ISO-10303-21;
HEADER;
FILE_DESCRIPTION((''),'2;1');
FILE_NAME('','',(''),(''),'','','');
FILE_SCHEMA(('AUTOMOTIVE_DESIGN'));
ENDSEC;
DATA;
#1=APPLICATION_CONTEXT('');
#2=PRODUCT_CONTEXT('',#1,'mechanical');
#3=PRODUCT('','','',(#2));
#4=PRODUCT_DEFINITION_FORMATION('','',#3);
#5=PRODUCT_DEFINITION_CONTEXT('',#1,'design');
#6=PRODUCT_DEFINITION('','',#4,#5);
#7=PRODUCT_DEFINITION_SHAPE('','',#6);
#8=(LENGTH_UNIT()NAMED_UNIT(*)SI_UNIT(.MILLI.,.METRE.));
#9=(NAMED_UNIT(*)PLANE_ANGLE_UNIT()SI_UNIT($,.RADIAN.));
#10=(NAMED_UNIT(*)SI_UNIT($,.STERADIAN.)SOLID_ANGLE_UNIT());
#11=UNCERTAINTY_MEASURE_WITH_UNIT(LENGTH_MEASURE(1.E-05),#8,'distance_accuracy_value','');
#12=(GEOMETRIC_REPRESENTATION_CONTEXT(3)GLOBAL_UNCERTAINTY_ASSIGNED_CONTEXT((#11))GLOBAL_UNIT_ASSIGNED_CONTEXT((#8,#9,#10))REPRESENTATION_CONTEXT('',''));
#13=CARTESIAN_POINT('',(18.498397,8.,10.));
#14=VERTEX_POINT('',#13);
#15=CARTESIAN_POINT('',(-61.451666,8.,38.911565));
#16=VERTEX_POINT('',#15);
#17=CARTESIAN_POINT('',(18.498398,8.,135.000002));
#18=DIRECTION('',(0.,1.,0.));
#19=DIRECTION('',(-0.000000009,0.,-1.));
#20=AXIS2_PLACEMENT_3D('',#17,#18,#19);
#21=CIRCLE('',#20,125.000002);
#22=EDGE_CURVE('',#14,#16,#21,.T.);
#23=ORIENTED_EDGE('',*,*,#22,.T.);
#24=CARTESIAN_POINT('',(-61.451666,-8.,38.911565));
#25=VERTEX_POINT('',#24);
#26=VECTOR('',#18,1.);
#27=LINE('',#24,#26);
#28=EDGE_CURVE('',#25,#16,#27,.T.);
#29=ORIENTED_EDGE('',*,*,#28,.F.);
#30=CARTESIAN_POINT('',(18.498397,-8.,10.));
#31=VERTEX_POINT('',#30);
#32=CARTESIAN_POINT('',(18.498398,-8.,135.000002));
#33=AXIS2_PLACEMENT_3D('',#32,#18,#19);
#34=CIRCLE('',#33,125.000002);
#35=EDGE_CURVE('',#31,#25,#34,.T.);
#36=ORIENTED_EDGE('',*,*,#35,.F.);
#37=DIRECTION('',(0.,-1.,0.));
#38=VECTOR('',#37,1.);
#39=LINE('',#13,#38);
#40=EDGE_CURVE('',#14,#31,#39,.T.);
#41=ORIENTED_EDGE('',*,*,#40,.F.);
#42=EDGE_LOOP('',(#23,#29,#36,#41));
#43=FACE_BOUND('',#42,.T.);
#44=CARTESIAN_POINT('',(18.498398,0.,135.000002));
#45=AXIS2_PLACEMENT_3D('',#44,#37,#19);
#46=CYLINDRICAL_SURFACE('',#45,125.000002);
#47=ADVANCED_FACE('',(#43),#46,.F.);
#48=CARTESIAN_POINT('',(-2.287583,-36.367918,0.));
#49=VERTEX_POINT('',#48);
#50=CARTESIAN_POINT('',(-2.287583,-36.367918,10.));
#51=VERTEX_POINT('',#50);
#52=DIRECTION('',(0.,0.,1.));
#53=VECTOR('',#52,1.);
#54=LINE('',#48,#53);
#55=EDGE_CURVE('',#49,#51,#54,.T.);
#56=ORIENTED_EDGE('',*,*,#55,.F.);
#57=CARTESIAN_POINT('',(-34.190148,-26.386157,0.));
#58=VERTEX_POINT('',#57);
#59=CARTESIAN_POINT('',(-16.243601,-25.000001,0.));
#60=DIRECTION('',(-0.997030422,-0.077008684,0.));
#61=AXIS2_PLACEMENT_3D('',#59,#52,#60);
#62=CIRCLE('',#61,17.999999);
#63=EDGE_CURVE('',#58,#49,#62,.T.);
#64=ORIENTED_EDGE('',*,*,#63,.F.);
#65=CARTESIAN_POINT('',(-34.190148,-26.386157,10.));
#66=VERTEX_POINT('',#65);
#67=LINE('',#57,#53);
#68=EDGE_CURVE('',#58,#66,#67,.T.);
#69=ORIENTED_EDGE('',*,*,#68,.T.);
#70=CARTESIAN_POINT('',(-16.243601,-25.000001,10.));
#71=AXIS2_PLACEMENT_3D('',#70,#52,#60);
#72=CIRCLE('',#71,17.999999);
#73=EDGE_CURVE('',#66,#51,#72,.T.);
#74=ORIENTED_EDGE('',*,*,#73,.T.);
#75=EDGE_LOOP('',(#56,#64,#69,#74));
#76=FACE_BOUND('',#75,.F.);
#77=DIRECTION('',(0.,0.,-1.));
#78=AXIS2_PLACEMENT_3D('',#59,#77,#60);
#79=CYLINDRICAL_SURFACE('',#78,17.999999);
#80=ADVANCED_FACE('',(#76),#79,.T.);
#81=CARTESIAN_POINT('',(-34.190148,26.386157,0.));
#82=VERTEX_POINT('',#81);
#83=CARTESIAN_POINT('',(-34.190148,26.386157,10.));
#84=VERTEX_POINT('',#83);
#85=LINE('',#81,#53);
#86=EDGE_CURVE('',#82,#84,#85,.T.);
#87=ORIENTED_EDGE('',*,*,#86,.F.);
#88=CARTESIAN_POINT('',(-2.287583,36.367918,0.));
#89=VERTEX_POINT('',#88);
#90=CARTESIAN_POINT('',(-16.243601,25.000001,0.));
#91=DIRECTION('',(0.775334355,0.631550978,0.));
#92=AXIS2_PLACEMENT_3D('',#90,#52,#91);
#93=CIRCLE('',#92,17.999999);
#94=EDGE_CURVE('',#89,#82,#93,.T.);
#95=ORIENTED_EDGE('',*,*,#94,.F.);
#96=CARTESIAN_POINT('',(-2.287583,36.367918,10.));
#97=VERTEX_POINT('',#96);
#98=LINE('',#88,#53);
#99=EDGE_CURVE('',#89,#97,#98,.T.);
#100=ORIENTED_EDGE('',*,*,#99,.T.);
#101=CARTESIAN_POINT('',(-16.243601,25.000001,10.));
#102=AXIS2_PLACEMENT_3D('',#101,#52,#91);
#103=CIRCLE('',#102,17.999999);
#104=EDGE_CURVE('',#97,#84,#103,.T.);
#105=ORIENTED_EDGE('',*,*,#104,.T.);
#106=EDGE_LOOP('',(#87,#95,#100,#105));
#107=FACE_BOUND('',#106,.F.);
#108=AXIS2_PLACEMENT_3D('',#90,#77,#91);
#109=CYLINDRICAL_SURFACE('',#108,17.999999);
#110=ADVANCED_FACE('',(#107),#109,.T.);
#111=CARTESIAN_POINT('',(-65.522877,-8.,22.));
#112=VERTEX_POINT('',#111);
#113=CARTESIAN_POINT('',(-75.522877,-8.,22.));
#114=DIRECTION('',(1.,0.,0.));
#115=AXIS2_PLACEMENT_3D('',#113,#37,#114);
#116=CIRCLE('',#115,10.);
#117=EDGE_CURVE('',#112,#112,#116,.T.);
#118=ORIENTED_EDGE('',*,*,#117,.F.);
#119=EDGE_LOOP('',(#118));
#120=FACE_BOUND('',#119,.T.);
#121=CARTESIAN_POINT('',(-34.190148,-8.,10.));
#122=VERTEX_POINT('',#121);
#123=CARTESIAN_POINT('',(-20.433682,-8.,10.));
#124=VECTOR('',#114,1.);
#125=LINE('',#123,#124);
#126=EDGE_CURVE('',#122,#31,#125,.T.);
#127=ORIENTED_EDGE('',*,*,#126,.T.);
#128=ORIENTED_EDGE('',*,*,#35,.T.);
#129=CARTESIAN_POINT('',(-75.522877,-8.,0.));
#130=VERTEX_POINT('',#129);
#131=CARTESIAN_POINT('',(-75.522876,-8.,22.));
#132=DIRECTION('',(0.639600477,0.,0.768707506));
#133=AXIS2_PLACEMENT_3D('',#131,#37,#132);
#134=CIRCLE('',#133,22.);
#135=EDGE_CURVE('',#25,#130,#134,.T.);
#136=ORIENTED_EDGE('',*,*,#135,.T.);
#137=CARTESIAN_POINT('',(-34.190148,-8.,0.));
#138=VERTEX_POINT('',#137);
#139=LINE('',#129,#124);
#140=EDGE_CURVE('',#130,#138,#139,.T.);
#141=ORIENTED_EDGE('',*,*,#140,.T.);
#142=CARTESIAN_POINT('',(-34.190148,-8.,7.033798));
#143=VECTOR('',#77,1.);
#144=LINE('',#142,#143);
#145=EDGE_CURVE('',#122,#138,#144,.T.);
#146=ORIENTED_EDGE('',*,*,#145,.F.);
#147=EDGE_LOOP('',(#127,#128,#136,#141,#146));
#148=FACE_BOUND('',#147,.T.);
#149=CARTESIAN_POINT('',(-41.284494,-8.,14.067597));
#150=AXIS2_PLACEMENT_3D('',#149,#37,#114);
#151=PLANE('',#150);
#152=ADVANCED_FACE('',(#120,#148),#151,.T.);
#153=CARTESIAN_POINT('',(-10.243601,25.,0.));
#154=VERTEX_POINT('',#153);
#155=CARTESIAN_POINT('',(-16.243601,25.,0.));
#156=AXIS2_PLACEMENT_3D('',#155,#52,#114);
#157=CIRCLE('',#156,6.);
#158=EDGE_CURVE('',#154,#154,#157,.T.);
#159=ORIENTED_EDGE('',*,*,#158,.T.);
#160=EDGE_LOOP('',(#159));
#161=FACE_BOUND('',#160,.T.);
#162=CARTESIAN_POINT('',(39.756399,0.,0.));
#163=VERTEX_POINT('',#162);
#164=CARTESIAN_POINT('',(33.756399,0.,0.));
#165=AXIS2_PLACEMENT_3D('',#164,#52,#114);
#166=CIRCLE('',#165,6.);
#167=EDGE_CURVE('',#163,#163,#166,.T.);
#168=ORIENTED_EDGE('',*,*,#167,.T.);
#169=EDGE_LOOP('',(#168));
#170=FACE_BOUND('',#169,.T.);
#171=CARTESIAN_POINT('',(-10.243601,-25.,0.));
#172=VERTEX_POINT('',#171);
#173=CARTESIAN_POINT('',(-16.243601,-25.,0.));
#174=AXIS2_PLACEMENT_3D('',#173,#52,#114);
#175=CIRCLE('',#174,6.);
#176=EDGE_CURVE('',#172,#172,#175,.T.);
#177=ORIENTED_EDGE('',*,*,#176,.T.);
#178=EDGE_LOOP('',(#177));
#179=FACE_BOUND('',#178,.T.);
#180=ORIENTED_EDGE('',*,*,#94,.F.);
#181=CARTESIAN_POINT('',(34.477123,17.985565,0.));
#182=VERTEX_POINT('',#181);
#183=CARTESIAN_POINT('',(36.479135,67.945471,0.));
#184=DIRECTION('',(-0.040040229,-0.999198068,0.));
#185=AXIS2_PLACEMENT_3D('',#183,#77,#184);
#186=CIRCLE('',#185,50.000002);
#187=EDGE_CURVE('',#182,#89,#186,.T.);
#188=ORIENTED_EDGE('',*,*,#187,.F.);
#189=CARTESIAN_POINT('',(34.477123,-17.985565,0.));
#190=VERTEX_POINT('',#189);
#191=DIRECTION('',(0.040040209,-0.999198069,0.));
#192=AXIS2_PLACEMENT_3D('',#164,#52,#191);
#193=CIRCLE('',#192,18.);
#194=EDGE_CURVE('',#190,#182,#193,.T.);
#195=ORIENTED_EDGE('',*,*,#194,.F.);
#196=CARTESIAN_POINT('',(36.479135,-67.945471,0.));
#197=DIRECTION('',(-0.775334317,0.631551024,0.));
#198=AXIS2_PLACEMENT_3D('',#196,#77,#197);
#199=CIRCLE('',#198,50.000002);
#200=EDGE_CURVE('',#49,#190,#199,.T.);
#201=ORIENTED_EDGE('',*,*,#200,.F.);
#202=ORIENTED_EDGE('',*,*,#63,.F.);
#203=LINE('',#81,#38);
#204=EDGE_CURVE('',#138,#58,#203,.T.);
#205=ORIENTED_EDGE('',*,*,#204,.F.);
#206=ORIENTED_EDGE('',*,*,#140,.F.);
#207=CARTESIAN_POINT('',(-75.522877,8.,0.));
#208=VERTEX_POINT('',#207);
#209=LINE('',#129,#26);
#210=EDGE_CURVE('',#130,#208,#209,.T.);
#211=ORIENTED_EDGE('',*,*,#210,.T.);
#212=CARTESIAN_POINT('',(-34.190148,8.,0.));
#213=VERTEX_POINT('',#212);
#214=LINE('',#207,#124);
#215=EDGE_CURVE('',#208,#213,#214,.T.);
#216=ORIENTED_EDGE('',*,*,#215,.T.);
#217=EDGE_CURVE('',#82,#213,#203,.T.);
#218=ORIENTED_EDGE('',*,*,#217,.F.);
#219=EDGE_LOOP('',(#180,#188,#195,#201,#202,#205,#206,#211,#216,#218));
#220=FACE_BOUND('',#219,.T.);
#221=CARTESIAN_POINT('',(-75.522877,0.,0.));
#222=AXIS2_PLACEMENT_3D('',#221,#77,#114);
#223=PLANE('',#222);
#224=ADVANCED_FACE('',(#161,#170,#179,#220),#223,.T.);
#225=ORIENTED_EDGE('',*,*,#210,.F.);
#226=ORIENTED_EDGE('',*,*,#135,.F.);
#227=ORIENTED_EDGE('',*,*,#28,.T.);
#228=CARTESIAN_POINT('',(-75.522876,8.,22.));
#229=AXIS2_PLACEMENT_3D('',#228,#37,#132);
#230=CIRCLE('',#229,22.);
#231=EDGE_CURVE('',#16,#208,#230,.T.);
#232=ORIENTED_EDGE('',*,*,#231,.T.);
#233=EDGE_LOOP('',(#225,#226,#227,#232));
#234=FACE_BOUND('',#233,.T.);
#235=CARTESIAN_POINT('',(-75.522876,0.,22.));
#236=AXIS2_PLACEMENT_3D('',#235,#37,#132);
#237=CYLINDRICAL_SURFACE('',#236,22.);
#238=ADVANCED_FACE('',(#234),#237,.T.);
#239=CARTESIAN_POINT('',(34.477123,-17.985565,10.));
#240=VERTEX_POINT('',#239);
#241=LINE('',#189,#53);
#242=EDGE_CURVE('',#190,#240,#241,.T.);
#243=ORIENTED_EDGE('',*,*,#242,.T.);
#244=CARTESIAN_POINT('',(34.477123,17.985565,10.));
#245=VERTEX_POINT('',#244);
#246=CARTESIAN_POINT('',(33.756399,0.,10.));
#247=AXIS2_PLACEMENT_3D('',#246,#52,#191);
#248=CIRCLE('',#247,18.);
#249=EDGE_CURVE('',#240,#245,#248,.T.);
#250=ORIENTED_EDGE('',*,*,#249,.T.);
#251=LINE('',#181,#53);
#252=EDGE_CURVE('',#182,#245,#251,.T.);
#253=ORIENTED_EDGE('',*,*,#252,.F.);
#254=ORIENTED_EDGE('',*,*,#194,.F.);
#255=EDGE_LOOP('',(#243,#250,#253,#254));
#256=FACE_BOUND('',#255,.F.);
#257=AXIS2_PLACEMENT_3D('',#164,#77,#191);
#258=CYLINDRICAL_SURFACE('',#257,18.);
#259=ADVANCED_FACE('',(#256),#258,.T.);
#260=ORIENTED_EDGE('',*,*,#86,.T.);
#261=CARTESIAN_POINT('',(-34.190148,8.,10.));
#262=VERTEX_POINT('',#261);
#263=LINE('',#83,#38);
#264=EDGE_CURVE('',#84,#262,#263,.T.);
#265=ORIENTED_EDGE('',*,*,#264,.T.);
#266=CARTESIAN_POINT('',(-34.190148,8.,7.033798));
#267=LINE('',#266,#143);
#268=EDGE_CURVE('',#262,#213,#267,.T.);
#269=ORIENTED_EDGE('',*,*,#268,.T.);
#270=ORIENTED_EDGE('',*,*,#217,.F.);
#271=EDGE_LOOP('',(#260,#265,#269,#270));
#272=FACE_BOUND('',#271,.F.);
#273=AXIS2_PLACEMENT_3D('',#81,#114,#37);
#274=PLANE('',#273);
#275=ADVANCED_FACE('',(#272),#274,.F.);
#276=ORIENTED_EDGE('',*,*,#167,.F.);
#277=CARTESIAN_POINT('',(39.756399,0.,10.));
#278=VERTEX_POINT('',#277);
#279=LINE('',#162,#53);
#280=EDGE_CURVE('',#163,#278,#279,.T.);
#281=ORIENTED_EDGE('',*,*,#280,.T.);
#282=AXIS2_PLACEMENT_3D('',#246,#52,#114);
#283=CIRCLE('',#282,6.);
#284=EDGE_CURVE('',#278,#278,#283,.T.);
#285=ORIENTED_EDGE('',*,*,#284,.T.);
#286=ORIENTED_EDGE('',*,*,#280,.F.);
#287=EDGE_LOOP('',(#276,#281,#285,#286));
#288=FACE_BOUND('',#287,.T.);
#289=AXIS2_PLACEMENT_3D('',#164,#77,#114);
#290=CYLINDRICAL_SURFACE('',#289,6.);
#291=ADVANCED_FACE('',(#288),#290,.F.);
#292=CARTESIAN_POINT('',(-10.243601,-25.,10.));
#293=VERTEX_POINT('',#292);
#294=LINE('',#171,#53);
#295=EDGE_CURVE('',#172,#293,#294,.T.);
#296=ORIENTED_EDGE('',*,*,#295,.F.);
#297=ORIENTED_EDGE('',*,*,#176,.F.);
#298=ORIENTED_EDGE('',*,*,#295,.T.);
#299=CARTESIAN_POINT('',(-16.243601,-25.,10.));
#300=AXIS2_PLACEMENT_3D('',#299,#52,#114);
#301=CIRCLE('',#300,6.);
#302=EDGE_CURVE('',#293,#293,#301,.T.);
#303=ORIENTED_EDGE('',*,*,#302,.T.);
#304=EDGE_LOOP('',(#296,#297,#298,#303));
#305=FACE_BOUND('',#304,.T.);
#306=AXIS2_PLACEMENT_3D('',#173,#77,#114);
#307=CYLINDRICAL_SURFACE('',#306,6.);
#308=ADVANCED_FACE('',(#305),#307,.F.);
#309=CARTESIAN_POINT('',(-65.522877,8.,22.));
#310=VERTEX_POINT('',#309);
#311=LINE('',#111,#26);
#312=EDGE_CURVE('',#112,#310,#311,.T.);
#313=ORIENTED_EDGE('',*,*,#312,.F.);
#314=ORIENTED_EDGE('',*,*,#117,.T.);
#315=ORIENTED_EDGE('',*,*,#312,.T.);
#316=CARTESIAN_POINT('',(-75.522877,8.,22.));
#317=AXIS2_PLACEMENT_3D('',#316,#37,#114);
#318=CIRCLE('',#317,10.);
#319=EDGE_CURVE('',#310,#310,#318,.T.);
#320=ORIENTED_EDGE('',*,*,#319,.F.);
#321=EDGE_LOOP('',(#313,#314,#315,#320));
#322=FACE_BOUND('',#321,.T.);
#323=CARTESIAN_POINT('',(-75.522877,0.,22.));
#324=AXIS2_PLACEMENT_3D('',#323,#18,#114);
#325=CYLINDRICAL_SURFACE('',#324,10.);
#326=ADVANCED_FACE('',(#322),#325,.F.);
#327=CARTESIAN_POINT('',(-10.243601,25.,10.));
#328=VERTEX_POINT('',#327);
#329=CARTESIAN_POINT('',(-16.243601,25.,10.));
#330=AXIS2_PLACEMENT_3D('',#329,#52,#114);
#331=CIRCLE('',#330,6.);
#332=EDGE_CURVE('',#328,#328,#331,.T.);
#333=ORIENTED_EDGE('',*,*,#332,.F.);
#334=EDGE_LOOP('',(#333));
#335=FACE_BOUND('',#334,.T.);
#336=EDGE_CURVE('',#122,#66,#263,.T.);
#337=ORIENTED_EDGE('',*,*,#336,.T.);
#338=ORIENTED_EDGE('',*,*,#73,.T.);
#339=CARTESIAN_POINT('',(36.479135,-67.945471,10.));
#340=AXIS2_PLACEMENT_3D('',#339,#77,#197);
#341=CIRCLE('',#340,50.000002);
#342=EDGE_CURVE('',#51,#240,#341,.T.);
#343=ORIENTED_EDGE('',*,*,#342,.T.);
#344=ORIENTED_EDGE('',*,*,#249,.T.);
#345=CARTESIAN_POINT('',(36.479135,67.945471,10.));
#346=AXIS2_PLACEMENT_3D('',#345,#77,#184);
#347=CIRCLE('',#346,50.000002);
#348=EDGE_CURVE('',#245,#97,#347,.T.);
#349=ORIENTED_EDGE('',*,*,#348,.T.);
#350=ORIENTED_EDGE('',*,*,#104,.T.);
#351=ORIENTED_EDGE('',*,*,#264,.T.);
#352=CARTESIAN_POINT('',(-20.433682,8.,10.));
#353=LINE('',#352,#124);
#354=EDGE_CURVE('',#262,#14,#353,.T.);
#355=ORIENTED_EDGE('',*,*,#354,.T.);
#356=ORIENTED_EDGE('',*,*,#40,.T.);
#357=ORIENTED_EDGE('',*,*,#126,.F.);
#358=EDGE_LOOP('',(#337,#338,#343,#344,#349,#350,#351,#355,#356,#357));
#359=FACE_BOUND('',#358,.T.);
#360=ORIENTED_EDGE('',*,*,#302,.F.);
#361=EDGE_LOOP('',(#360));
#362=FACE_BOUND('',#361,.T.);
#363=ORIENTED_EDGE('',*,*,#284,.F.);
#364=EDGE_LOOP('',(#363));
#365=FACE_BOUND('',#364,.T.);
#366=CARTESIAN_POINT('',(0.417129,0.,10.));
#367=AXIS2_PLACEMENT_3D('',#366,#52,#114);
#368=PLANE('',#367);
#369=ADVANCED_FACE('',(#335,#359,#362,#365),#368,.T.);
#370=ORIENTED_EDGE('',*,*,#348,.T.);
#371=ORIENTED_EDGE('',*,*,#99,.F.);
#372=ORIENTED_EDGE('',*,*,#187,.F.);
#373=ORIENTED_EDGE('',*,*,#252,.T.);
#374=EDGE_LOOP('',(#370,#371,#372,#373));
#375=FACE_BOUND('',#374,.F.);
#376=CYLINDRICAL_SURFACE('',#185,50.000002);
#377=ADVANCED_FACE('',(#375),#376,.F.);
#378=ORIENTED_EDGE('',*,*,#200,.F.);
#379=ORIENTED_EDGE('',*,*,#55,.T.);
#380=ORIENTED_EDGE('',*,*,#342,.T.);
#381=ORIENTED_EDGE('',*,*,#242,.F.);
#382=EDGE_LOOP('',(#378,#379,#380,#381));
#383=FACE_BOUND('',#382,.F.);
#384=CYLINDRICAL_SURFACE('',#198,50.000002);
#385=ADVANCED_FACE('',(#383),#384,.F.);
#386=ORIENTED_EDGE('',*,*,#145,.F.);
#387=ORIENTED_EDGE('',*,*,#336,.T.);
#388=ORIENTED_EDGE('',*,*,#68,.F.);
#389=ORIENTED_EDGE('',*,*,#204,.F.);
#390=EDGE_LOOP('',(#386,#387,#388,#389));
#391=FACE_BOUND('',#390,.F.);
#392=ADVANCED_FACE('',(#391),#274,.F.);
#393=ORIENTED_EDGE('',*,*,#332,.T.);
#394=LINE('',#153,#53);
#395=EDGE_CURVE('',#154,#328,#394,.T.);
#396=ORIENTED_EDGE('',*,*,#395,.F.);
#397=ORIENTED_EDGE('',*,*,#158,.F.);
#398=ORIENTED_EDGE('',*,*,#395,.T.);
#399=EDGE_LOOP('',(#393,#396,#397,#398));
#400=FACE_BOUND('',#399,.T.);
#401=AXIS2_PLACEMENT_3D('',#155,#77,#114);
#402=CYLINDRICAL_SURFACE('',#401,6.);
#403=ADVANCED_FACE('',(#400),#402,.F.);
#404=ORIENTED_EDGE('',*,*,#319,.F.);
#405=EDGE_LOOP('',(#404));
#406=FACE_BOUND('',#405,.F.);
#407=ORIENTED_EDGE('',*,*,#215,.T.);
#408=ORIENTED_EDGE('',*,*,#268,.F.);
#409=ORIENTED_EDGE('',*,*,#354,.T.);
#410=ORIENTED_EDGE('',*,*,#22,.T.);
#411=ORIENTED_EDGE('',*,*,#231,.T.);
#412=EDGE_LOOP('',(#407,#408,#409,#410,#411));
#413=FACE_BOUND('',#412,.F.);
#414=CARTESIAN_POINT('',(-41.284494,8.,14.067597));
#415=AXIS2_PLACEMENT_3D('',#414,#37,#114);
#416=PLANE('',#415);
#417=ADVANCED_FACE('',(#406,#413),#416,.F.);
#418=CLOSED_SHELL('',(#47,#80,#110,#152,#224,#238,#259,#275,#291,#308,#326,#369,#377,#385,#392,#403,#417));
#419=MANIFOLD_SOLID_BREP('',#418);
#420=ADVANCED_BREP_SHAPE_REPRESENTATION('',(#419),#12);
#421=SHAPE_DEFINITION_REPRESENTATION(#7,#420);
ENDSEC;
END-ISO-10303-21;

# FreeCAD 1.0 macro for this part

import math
import FreeCAD as App
import Part
import Sketcher

V = App.Vector

doc = App.newDocument("Part")
body = doc.addObject("PartDesign::Body", "Body")

sketch1 = doc.addObject("Sketcher::SketchObject", "Sketch")
body.addObject(sketch1)
sketch1.AttachmentSupport = (doc.XY_Plane, [""])
sketch1.MapMode = "FlatFace"
sketch1.addGeometry([
    Part.ArcOfCircle(Part.Circle(V(36.479135, -67.945471, 0), V(0, 0, 1), 50.000002), math.radians(92.29475), math.radians(140.835353)),
    Part.ArcOfCircle(Part.Circle(V(33.756399, 0, 0), V(0, 0, 1), 18), math.radians(-87.705252), math.radians(87.705252)),
    Part.ArcOfCircle(Part.Circle(V(36.479135, 67.945471, 0), V(0, 0, 1), 50.000002), math.radians(-140.835353), math.radians(-92.29475)),
    Part.ArcOfCircle(Part.Circle(V(-16.243601, 25.000001, 0), V(0, 0, 1), 17.999999), math.radians(39.164644), math.radians(175.583355)),
    Part.LineSegment(V(-34.190148, 26.386157, 0), V(-34.190148, -26.386157, 0)),
    Part.ArcOfCircle(Part.Circle(V(-16.243601, -25.000001, 0), V(0, 0, 1), 17.999999), math.radians(-175.583355), math.radians(-39.164644)),
    Part.Circle(V(-16.243601, -25, 0), V(0, 0, 1), 6),
    Part.Circle(V(-16.243601, 25, 0), V(0, 0, 1), 6),
    Part.Circle(V(33.756399, 0, 0), V(0, 0, 1), 6),
], False)
sketch1.addConstraint([
    Sketcher.Constraint("Tangent", 0, 1, 1, 1),
    Sketcher.Constraint("Tangent", 1, 2, 2, 2),
    Sketcher.Constraint("Tangent", 2, 1, 3, 1),
    Sketcher.Constraint("Coincident", 3, 2, 4, 1),
    Sketcher.Constraint("Coincident", 4, 2, 5, 1),
    Sketcher.Constraint("Tangent", 5, 2, 0, 2),
    Sketcher.Constraint("Vertical", 4),
    Sketcher.Constraint("Coincident", 6, 3, 5, 3),
    Sketcher.Constraint("Coincident", 7, 3, 3, 3),
    Sketcher.Constraint("Coincident", 8, 3, 1, 3),
    Sketcher.Constraint("Equal", 0, 2),
    Sketcher.Constraint("Equal", 1, 3),
    Sketcher.Constraint("Equal", 3, 5),
    Sketcher.Constraint("Equal", 6, 7),
    Sketcher.Constraint("Equal", 7, 8),
    Sketcher.Constraint("Symmetric", 0, 3, 2, 3, -1),
    Sketcher.Constraint("Vertical", 3, 3, 5, 3),
    Sketcher.Constraint("Diameter", 6, 12.0),
    Sketcher.Constraint("Radius", 1, 18.0),
    Sketcher.Constraint("DistanceY", -1, 1, 3, 3, 25.000001),
    Sketcher.Constraint("DistanceX", 3, 3, 1, 3, 50.0),
    Sketcher.Constraint("Radius", 0, 50.000002),
    Sketcher.Constraint("DistanceX", -1, 1, 1, 3, 33.756399),
    Sketcher.Constraint("DistanceY", 4, 2, 4, 1, 52.772314),
])
pad1 = doc.addObject("PartDesign::Pad", "Pad")
body.addObject(pad1)
pad1.Profile = sketch1
pad1.Length = 10

sketch2 = doc.addObject("Sketcher::SketchObject", "Sketch001")
body.addObject(sketch2)
sketch2.AttachmentSupport = (doc.XZ_Plane, [""])
sketch2.MapMode = "FlatFace"
sketch2.addGeometry([
    Part.LineSegment(V(-75.522877, 0, 0), V(18.498397, 0, 0)),
    Part.LineSegment(V(18.498397, 0, 0), V(18.498397, 10, 0)),
    Part.ArcOfCircle(Part.Circle(V(18.498398, 135.000002, 0), V(0, 0, 1), 125.000002), math.radians(-129.762037), math.radians(-90.000001)),
    Part.ArcOfCircle(Part.Circle(V(-75.522876, 22, 0), V(0, 0, 1), 22), math.radians(50.237965), math.radians(269.999999)),
    Part.Circle(V(-75.522877, 22, 0), V(0, 0, 1), 10),
], False)
sketch2.addConstraint([
    Sketcher.Constraint("Coincident", 0, 2, 1, 1),
    Sketcher.Constraint("Coincident", 1, 2, 2, 2),
    Sketcher.Constraint("Tangent", 2, 1, 3, 1),
    Sketcher.Constraint("Tangent", 3, 2, 0, 1),
    Sketcher.Constraint("Horizontal", 0),
    Sketcher.Constraint("Vertical", 1),
    Sketcher.Constraint("Coincident", 4, 3, 3, 3),
    Sketcher.Constraint("PointOnObject", 0, 2, -1),
    Sketcher.Constraint("Vertical", 2, 3, 0, 2),
    Sketcher.Constraint("Diameter", 4, 20.0),
    Sketcher.Constraint("Radius", 2, 125.000002),
    Sketcher.Constraint("Radius", 3, 22.0),
    Sketcher.Constraint("DistanceY", 1, 1, 1, 2, 10.0),
    Sketcher.Constraint("DistanceX", -1, 1, 2, 3, 18.498398),
])
pad2 = doc.addObject("PartDesign::Pad", "Pad001")
body.addObject(pad2)
pad2.Profile = sketch2
pad2.Length = 16
pad2.Midplane = True

doc.recompute()
